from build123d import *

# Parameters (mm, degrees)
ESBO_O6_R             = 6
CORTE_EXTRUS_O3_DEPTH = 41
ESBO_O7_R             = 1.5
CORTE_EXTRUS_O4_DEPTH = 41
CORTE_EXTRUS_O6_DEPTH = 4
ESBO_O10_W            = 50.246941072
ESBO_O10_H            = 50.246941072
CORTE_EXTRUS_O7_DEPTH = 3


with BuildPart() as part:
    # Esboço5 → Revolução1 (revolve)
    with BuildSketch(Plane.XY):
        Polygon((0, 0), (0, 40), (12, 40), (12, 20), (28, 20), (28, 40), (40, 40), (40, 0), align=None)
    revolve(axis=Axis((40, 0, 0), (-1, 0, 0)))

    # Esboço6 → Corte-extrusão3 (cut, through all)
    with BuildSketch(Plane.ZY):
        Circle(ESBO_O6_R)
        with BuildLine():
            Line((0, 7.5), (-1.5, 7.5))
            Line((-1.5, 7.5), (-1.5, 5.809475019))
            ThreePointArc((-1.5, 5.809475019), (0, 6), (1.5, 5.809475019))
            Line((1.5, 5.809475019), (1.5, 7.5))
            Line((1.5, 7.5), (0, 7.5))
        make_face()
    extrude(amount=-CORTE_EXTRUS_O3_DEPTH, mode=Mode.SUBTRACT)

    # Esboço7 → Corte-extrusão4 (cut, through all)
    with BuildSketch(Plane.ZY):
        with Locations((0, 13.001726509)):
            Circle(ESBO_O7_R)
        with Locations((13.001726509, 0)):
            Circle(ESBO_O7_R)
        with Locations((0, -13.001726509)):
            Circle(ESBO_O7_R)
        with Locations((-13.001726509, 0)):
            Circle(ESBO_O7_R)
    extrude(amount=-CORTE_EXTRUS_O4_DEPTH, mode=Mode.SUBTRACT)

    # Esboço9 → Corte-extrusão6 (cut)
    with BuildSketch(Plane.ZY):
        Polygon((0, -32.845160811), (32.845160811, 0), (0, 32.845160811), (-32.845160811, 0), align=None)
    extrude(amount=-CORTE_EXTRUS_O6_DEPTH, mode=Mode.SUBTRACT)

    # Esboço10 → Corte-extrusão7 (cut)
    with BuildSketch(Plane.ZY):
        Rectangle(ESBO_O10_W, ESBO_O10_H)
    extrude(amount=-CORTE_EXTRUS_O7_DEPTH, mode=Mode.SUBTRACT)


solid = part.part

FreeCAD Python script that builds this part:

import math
import FreeCAD as App
import Part
import Sketcher
from FreeCAD import Vector


def add_polygon(sketch, points):
    """Adds a closed chain of lines whose ends are joined by coincident constraints."""
    first, n = sketch.GeometryCount, len(points)
    for a, b in zip(points, points[1:] + points[:1]):
        sketch.addGeometry(Part.LineSegment(App.Vector(*a, 0), App.Vector(*b, 0)), False)
    for i in range(n):
        sketch.addConstraint(Sketcher.Constraint("Coincident", first + i, 2, first + (i + 1) % n, 1))

doc = App.newDocument("Part")
body = doc.addObject("PartDesign::Body", "Body")

# Sketch on XY plane
sketch1 = body.newObject("Sketcher::SketchObject", "Sketch")
sketch1.AttachmentSupport = (doc.getObject("XY_Plane"), [""])
sketch1.MapMode = "FlatFace"
add_polygon(sketch1, [(0, 40), (0, 0), (40, 0), (40, 40), (28, 40), (28, 20), (12, 20), (12, 40)])  # lines 0-7
sketch1.addConstraint([
    Sketcher.Constraint("Vertical", 0),
    Sketcher.Constraint("Horizontal", 1),
    Sketcher.Constraint("Vertical", 2),
    Sketcher.Constraint("Horizontal", 3),
    Sketcher.Constraint("Vertical", 4),
    Sketcher.Constraint("Horizontal", 5),
    Sketcher.Constraint("Vertical", 6),
    Sketcher.Constraint("Horizontal", 7),
    Sketcher.Constraint("Coincident", 0, 2, -1, 1),
    Sketcher.Constraint("Horizontal", 3, 2, 6, 2),
    Sketcher.Constraint("Equal", 3, 7),
    Sketcher.Constraint("Equal", 1, 0),
    Sketcher.Constraint("DistanceX", 1, 1, 1, 2, 40.0),
    Sketcher.Constraint("DistanceX", 3, 2, 3, 1, 12.0),
    Sketcher.Constraint("DistanceY", 4, 2, 4, 1, 20.0),
])
revolution = body.newObject("PartDesign::Revolution", "Revolution")
revolution.Profile = sketch1
revolution.ReferenceAxis = (sketch1, ["H_Axis"])
revolution.Angle = 360

# Sketch on YZ plane
sketch2 = body.newObject("Sketcher::SketchObject", "Sketch001")
sketch2.AttachmentSupport = (doc.getObject("YZ_Plane"), [""])
sketch2.MapMode = "FlatFace"
sketch2.addGeometry([
    Part.LineSegment(Vector(5.8, 1.5, 0), Vector(7.5, 1.5, 0)),
    Part.LineSegment(Vector(7.5, 1.5, 0), Vector(7.5, -1.5, 0)),
    Part.LineSegment(Vector(7.5, -1.5, 0), Vector(5.8, -1.5, 0)),
    Part.ArcOfCircle(Part.Circle(Vector(0, 0, 0), Vector(0, 0, 1), 6), math.radians(14), math.radians(346)),
], False)
sketch2.addConstraint([
    Sketcher.Constraint("Coincident", 0, 2, 1, 1),
    Sketcher.Constraint("Coincident", 1, 2, 2, 1),
    Sketcher.Constraint("Coincident", 2, 2, 3, 2),
    Sketcher.Constraint("Coincident", 3, 1, 0, 1),
    Sketcher.Constraint("Horizontal", 0),
    Sketcher.Constraint("Vertical", 1),
    Sketcher.Constraint("Horizontal", 2),
    Sketcher.Constraint("Coincident", 3, 3, -1, 1),
    Sketcher.Constraint("Vertical", 2, 2, 3, 1),
    Sketcher.Constraint("Radius", 3, 6.0),
    Sketcher.Constraint("DistanceY", 1, 2, 1, 1, 3.0),
    Sketcher.Constraint("DistanceX", -1, 1, 0, 2, 7.5),
])
pocket1 = body.newObject("PartDesign::Pocket", "Pocket")
pocket1.Profile = sketch2
pocket1.Type = "ThroughAll"
pocket1.Reversed = True

# Sketch on YZ plane
sketch3 = body.newObject("Sketcher::SketchObject", "Sketch002")
sketch3.AttachmentSupport = (doc.getObject("YZ_Plane"), [""])
sketch3.MapMode = "FlatFace"
sketch3.addGeometry([
    Part.Circle(Vector(13, 0, 0), Vector(0, 0, 1), 1.5),
    Part.Circle(Vector(0, 13, 0), Vector(0, 0, 1), 1.5),
    Part.Circle(Vector(-13, 0, 0), Vector(0, 0, 1), 1.5),
    Part.Circle(Vector(0, -13, 0), Vector(0, 0, 1), 1.5),
], False)
sketch3.addConstraint([
    Sketcher.Constraint("Equal", 0, 1),
    Sketcher.Constraint("Equal", 1, 2),
    Sketcher.Constraint("Equal", 2, 3),
    Sketcher.Constraint("Symmetric", 0, 3, 2, 3, -1, 1),
    Sketcher.Constraint("Symmetric", 1, 3, 3, 3, -1, 1),
    Sketcher.Constraint("PointOnObject", 0, 3, -1),
    Sketcher.Constraint("PointOnObject", 1, 3, -2),
    Sketcher.Constraint("Diameter", 0, 3.0),
    Sketcher.Constraint("DistanceX", -1, 1, 0, 3, 13.001727),
    Sketcher.Constraint("DistanceY", -1, 1, 1, 3, 13.001727),
])
pocket2 = body.newObject("PartDesign::Pocket", "Pocket001")
pocket2.Profile = sketch3
pocket2.Type = "ThroughAll"
pocket2.Reversed = True

# Sketch on YZ plane
sketch4 = body.newObject("Sketcher::SketchObject", "Sketch003")
sketch4.AttachmentSupport = (doc.getObject("YZ_Plane"), [""])
sketch4.MapMode = "FlatFace"
add_polygon(sketch4, [(-33, 0), (0, 33), (33, 0), (0, -33)])  # lines 0-3
sketch4.addConstraint([
    Sketcher.Constraint("Symmetric", 0, 2, 2, 2, -1, 1),
    Sketcher.Constraint("Symmetric", 1, 2, 3, 2, -1, 1),
    Sketcher.Constraint("PointOnObject", 0, 2, -2),
    Sketcher.Constraint("PointOnObject", 1, 2, -1),
    Sketcher.Constraint("Perpendicular", 0, 1),
    Sketcher.Constraint("Distance", 0, 46.450072),
])
pocket3 = body.newObject("PartDesign::Pocket", "Pocket002")
pocket3.Profile = sketch4
pocket3.Length = 4
pocket3.Reversed = True

# Sketch on YZ plane
sketch5 = body.newObject("Sketcher::SketchObject", "Sketch004")
sketch5.AttachmentSupport = (doc.getObject("YZ_Plane"), [""])
sketch5.MapMode = "FlatFace"
add_polygon(sketch5, [(25, -25), (-25, -25), (-25, 25), (25, 25)])  # lines 0-3
sketch5.addConstraint([
    Sketcher.Constraint("Horizontal", 0),
    Sketcher.Constraint("Vertical", 1),
    Sketcher.Constraint("Horizontal", 2),
    Sketcher.Constraint("Vertical", 3),
    Sketcher.Constraint("Symmetric", 0, 2, 2, 2, -1, 1),
    Sketcher.Constraint("Equal", 2, 1),
    Sketcher.Constraint("DistanceX", 0, 2, 0, 1, 50.246941),
])
pocket4 = body.newObject("PartDesign::Pocket", "Pocket003")
pocket4.Profile = sketch5
pocket4.Length = 3
pocket4.Reversed = True

doc.recompute()
